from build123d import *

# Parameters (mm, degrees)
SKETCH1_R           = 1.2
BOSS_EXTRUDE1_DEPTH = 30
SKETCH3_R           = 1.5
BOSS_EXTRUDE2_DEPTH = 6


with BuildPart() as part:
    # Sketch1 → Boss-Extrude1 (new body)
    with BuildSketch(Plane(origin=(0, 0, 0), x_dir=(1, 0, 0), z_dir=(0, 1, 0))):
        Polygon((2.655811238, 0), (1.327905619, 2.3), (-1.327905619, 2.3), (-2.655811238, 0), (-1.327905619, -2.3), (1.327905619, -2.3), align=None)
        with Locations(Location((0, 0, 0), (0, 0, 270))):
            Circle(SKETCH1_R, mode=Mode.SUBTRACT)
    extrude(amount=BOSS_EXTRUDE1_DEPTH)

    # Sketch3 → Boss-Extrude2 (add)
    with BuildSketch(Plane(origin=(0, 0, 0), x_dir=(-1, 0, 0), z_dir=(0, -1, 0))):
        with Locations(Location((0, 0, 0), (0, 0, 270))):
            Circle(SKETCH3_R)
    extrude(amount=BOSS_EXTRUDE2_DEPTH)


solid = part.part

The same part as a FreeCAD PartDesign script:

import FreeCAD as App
import Part
import Sketcher

V = App.Vector
Q = App.Units.Quantity

doc = App.newDocument("Part")
body = doc.addObject("PartDesign::Body", "Body")

# Sketch on XZ plane
sketch1 = body.newObject("Sketcher::SketchObject", "Sketch")
sketch1.AttachmentSupport = (doc.getObject("XZ_Plane"), [""])
sketch1.MapMode = "FlatFace"
sketch1.addGeometry([
    Part.LineSegment(V(2.7, 0, 0), V(1.3, -2.3, 0)),  # 0
    Part.LineSegment(V(1.3, -2.3, 0), V(-1.3, -2.3, 0)),  # 1
    Part.LineSegment(V(-1.3, -2.3, 0), V(-2.7, 0, 0)),  # 2
    Part.LineSegment(V(-2.7, 0, 0), V(-1.3, 2.3, 0)),  # 3
    Part.LineSegment(V(-1.3, 2.3, 0), V(1.3, 2.3, 0)),  # 4
    Part.LineSegment(V(1.3, 2.3, 0), V(2.7, 0, 0)),  # 5
    Part.Circle(V(0, 0, 0), V(0, 0, 1), 1.2),  # 6
], False)
sketch1.addConstraint([
    Sketcher.Constraint("Coincident", 0, 2, 1, 1),
    Sketcher.Constraint("Coincident", 1, 2, 2, 1),
    Sketcher.Constraint("Coincident", 2, 2, 3, 1),
    Sketcher.Constraint("Coincident", 3, 2, 4, 1),
    Sketcher.Constraint("Coincident", 4, 2, 5, 1),
    Sketcher.Constraint("Coincident", 5, 2, 0, 1),
    Sketcher.Constraint("Horizontal", 1),
    Sketcher.Constraint("Horizontal", 4),
    Sketcher.Constraint("Coincident", 6, 3, -1, 1),
    Sketcher.Constraint("Symmetric", 0, 2, 3, 2, -1, 1),
    Sketcher.Constraint("Symmetric", 2, 2, 5, 2, -1, 1),
    Sketcher.Constraint("PointOnObject", 2, 2, -1),
    Sketcher.Constraint("Parallel", 2, 5),
    Sketcher.Constraint("Vertical", 1, 2, 3, 2),
    Sketcher.Constraint("Diameter", 6, Q("2.4 mm")),
    Sketcher.Constraint("Angle", 0, Q("-120 deg")),
    Sketcher.Constraint("DistanceY", 0, 2, -1, 1, Q("2.3 mm")),
    Sketcher.Constraint("DistanceX", 1, 2, 1, 1, Q("2.655811 mm")),
])
pad1 = body.newObject("PartDesign::Pad", "Pad")
pad1.Profile = sketch1
pad1.Length = 30
pad1.Reversed = True

# Sketch on XZ plane
sketch2 = body.newObject("Sketcher::SketchObject", "Sketch001")
sketch2.AttachmentSupport = (doc.getObject("XZ_Plane"), [""])
sketch2.MapMode = "FlatFace"
sketch2.addGeometry(Part.Circle(V(0, 0, 0), V(0, 0, 1), 1.5), False)
sketch2.addConstraint([
    Sketcher.Constraint("Coincident", 0, 3, -1, 1),
    Sketcher.Constraint("Diameter", 0, Q("3 mm")),
])
pad2 = body.newObject("PartDesign::Pad", "Pad001")
pad2.Profile = sketch2
pad2.Length = 6

doc.recompute()
